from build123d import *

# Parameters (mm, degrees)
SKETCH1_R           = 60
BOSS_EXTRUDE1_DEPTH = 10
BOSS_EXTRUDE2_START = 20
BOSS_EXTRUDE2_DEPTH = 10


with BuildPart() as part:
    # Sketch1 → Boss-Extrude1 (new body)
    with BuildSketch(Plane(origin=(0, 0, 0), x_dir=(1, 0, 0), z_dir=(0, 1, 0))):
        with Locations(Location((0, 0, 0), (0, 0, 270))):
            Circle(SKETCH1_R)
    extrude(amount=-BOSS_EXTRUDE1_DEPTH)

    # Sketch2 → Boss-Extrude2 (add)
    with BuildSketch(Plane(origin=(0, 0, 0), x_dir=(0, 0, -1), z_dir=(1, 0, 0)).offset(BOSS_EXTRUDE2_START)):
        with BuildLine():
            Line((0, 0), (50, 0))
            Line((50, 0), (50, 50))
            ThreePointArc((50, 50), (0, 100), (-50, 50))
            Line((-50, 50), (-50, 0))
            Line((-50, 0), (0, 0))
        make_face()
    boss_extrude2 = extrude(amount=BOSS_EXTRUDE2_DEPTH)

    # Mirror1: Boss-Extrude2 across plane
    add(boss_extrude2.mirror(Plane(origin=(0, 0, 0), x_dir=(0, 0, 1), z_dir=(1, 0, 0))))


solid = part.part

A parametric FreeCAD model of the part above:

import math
import FreeCAD as App
import Part
import Sketcher
Q = App.Units.Quantity

doc = App.newDocument("Part")
body = doc.addObject("PartDesign::Body", "Body")

sketch1 = body.newObject("Sketcher::SketchObject", "Sketch")
sketch1.AttachmentSupport = (doc.getObject("XZ_Plane"), [""])
sketch1.MapMode = "FlatFace"
sketch1.addGeometry(Part.Circle(App.Vector(0, 0, 0), App.Vector(0, 0, 1), 60), False)
sketch1.addConstraint([
    Sketcher.Constraint("Coincident", 0, 3, -1, 1),
    Sketcher.Constraint("Diameter", 0, Q("120 mm")),
])
pad1 = body.newObject("PartDesign::Pad", "Pad")
pad1.Profile = sketch1
pad1.Length = 10

sketch2 = body.newObject("Sketcher::SketchObject", "Sketch001")
sketch2.AttachmentSupport = (doc.getObject("YZ_Plane"), [""])
sketch2.MapMode = "FlatFace"
sketch2.AttachmentOffset = App.Placement(App.Vector(0, 0, 20), App.Rotation())
sketch2.addGeometry([
    Part.LineSegment(App.Vector(0, -50, 0), App.Vector(50, -50, 0)),
    Part.ArcOfCircle(Part.Circle(App.Vector(50, 0, 0), App.Vector(0, 0, 1), 50), math.radians(-90), math.radians(90)),
    Part.LineSegment(App.Vector(50, 50, 0), App.Vector(0, 50, 0)),
    Part.LineSegment(App.Vector(0, 50, 0), App.Vector(0, -50, 0)),
], False)
sketch2.addConstraint([
    Sketcher.Constraint("Tangent", 0, 2, 1, 1),
    Sketcher.Constraint("Tangent", 1, 2, 2, 1),
    Sketcher.Constraint("Coincident", 2, 2, 3, 1),
    Sketcher.Constraint("Coincident", 3, 2, 0, 1),
    Sketcher.Constraint("Horizontal", 0),
    Sketcher.Constraint("Horizontal", 2),
    Sketcher.Constraint("Vertical", 3),
    Sketcher.Constraint("Symmetric", 2, 2, 3, 2, -1, 1),
    Sketcher.Constraint("Radius", 1, Q("50 mm")),
    Sketcher.Constraint("DistanceX", 0, 1, 0, 2, Q("50 mm")),
])
pad2 = body.newObject("PartDesign::Pad", "Pad001")
pad2.Profile = sketch2
pad2.Length = 10
doc.recompute()

mirrored = body.newObject("PartDesign::Mirrored", "Mirrored")
mirrored.Originals = [pad2]
mirrored.MirrorPlane = (doc.getObject("YZ_Plane"), [""])
body.Tip = mirrored

doc.recompute()
